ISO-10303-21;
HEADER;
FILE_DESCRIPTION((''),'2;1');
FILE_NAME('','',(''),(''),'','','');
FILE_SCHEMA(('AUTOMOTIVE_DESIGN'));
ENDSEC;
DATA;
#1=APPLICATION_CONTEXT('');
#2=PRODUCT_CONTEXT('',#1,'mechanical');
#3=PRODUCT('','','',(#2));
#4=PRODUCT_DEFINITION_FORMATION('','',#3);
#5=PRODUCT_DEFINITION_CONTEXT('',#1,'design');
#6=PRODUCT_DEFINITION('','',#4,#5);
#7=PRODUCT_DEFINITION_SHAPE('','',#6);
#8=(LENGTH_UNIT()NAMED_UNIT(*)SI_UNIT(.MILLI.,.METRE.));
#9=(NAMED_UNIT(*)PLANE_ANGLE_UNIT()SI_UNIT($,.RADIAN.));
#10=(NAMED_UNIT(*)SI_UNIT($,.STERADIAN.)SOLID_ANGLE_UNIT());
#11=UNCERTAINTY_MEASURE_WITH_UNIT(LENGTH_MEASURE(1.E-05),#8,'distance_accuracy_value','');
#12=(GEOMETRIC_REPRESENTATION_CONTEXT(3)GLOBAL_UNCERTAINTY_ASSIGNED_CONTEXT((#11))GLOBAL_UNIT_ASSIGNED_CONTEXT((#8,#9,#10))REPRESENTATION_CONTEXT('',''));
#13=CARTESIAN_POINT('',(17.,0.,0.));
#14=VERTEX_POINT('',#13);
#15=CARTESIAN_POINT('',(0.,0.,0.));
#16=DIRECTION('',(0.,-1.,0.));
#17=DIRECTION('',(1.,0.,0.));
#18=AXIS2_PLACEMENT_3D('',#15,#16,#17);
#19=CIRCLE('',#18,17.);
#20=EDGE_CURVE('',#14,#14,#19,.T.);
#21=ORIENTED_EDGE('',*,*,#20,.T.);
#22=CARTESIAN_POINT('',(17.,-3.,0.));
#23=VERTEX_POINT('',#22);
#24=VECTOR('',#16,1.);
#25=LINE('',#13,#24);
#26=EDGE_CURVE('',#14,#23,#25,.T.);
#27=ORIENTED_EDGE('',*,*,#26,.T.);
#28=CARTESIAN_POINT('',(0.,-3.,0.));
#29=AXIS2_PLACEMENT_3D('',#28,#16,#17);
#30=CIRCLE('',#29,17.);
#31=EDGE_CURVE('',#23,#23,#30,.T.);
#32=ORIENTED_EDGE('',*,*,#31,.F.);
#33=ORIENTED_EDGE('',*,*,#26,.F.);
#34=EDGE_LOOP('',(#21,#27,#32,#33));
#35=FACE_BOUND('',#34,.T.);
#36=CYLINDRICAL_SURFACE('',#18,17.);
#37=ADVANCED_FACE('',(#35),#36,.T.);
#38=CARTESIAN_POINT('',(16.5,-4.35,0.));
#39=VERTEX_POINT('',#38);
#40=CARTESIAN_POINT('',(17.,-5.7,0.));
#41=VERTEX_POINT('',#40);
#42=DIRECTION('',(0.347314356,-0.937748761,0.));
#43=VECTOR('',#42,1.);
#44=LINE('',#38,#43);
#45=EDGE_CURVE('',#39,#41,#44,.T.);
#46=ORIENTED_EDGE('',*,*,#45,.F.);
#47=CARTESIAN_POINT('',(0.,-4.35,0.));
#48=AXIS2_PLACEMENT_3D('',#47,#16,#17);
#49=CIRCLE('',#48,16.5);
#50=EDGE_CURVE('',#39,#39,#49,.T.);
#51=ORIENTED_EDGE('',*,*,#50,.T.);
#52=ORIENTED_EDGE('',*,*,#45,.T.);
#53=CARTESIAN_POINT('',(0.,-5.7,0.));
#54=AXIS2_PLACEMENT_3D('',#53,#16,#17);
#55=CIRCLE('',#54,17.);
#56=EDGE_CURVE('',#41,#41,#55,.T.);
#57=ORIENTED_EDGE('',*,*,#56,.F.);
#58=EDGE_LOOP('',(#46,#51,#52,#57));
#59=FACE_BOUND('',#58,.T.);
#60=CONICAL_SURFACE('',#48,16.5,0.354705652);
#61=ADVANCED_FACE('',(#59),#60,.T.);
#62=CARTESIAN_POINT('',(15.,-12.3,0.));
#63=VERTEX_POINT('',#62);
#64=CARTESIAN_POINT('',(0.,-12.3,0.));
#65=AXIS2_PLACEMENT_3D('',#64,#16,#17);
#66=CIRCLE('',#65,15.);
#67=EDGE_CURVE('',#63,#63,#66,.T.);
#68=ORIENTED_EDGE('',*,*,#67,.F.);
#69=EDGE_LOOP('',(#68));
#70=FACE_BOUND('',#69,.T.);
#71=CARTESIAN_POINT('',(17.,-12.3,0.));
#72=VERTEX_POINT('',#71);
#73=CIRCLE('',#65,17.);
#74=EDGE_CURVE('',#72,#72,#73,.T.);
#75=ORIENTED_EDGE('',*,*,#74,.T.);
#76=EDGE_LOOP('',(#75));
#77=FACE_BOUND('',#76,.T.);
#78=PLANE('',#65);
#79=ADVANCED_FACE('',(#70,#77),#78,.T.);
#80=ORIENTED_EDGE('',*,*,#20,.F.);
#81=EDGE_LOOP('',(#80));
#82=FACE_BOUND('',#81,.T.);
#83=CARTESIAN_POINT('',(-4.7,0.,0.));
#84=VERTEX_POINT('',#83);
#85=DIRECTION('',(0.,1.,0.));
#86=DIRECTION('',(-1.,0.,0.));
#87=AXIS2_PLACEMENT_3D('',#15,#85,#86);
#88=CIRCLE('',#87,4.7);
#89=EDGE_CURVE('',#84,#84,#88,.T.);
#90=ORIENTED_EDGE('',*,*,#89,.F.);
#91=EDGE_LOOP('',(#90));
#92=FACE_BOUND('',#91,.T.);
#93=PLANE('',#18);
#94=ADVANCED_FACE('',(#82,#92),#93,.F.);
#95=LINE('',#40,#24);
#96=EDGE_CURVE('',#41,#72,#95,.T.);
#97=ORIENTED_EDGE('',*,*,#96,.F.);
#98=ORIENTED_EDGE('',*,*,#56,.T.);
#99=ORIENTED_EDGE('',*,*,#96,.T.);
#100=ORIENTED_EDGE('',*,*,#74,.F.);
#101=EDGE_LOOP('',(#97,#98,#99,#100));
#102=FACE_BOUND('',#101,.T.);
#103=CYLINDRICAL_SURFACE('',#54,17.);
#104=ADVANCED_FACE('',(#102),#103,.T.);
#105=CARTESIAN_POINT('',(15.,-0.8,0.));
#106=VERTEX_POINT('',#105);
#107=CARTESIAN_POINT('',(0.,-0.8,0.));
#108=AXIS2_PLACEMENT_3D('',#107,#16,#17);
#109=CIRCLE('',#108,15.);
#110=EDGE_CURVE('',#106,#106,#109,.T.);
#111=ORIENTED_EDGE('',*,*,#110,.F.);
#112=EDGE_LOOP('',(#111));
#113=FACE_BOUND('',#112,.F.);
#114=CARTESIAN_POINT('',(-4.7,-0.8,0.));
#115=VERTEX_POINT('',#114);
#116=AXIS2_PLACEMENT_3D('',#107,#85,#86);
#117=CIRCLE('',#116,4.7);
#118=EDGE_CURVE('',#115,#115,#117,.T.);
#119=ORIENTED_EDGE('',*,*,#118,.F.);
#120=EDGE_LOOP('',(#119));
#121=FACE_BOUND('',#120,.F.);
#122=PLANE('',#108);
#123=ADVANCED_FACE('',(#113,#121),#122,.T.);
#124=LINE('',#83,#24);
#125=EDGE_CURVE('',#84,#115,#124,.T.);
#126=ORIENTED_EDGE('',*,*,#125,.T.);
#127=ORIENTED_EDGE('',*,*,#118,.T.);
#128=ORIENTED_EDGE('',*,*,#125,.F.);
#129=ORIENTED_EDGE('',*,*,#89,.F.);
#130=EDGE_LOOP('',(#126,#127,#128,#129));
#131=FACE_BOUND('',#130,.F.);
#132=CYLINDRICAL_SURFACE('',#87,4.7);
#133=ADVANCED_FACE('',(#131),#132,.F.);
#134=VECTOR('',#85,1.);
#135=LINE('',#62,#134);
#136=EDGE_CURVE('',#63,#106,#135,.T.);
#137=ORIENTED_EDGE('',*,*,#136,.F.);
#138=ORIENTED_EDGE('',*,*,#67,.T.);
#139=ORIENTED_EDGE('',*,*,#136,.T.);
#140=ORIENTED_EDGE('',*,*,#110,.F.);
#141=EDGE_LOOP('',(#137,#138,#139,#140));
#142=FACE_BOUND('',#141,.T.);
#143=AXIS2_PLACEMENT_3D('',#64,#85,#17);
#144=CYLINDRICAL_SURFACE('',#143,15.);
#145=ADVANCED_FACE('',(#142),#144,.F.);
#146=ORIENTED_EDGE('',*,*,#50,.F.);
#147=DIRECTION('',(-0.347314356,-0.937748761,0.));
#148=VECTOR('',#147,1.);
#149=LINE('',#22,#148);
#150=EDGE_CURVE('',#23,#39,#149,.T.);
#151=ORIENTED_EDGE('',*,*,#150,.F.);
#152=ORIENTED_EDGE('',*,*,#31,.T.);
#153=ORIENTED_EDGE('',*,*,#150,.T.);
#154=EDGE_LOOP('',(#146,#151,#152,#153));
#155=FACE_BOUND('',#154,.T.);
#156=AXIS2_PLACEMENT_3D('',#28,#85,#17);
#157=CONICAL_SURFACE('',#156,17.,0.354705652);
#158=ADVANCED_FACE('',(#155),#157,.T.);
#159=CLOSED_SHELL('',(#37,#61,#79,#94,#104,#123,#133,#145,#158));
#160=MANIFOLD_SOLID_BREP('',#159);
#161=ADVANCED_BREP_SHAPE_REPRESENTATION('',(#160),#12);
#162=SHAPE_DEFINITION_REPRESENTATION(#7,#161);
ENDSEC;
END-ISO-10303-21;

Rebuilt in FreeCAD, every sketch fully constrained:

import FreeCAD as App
import Part
import Sketcher

V = App.Vector

doc = App.newDocument("Part")
body = doc.addObject("PartDesign::Body", "Body")

sketch1 = doc.addObject("Sketcher::SketchObject", "Sketch")
body.addObject(sketch1)
sketch1.AttachmentSupport = (doc.XY_Plane, [""])
sketch1.MapMode = "FlatFace"
sketch1.addGeometry([
    Part.LineSegment(V(17, 0, 0), V(0, 0, 0)),
    Part.LineSegment(V(0, 0, 0), V(0, -0.8, 0)),
    Part.LineSegment(V(0, -0.8, 0), V(15, -0.8, 0)),
    Part.LineSegment(V(15, -0.8, 0), V(15, -12.3, 0)),
    Part.LineSegment(V(15, -12.3, 0), V(17, -12.3, 0)),
    Part.LineSegment(V(17, -12.3, 0), V(17, -5.7, 0)),
    Part.LineSegment(V(17, -5.7, 0), V(16.5, -4.3, 0)),
    Part.LineSegment(V(16.5, -4.3, 0), V(17, -3, 0)),
    Part.LineSegment(V(17, -3, 0), V(17, 0, 0)),
], False)
sketch1.addConstraint([
    Sketcher.Constraint("Coincident", 0, 2, 1, 1),
    Sketcher.Constraint("Coincident", 1, 2, 2, 1),
    Sketcher.Constraint("Coincident", 2, 2, 3, 1),
    Sketcher.Constraint("Coincident", 3, 2, 4, 1),
    Sketcher.Constraint("Coincident", 4, 2, 5, 1),
    Sketcher.Constraint("Coincident", 5, 2, 6, 1),
    Sketcher.Constraint("Coincident", 6, 2, 7, 1),
    Sketcher.Constraint("Coincident", 7, 2, 8, 1),
    Sketcher.Constraint("Coincident", 8, 2, 0, 1),
    Sketcher.Constraint("Horizontal", 0),
    Sketcher.Constraint("Vertical", 1),
    Sketcher.Constraint("Horizontal", 2),
    Sketcher.Constraint("Vertical", 3),
    Sketcher.Constraint("Horizontal", 4),
    Sketcher.Constraint("Vertical", 5),
    Sketcher.Constraint("Vertical", 8),
    Sketcher.Constraint("Coincident", 0, 2, -1, 1),
    Sketcher.Constraint("Vertical", 5, 2, 7, 2),
    Sketcher.Constraint("Equal", 6, 7),
    Sketcher.Constraint("DistanceX", 0, 2, 0, 1, 17.0),
    Sketcher.Constraint("DistanceX", 2, 1, 2, 2, 15.0),
    Sketcher.Constraint("DistanceY", 8, 1, 8, 2, 3.0),
    Sketcher.Constraint("DistanceY", 1, 2, 1, 1, 0.8),
    Sketcher.Constraint("DistanceY", 5, 1, 5, 2, 6.6),
    Sketcher.Constraint("DistanceX", 6, 2, 5, 2, 0.5),
    Sketcher.Constraint("DistanceY", 5, 2, 7, 2, 2.7),
])
revolution = doc.addObject("PartDesign::Revolution", "Revolution")
body.addObject(revolution)
revolution.Profile = sketch1
revolution.ReferenceAxis = (sketch1, ["V_Axis"])
revolution.Angle = 360

sketch2 = doc.addObject("Sketcher::SketchObject", "Sketch001")
body.addObject(sketch2)
sketch2.AttachmentSupport = (doc.XZ_Plane, [""])
sketch2.MapMode = "FlatFace"
sketch2.addGeometry(Part.Circle(V(0, 0, 0), V(0, 0, 1), 4.7), False)
sketch2.addConstraint([
    Sketcher.Constraint("Coincident", 0, 3, -1, 1),
    Sketcher.Constraint("Diameter", 0, 9.4),
])
pocket1 = doc.addObject("PartDesign::Pocket", "Pocket")
body.addObject(pocket1)
pocket1.Profile = sketch2
pocket1.Length = 5
pocket1.Reversed = True

doc.recompute()
